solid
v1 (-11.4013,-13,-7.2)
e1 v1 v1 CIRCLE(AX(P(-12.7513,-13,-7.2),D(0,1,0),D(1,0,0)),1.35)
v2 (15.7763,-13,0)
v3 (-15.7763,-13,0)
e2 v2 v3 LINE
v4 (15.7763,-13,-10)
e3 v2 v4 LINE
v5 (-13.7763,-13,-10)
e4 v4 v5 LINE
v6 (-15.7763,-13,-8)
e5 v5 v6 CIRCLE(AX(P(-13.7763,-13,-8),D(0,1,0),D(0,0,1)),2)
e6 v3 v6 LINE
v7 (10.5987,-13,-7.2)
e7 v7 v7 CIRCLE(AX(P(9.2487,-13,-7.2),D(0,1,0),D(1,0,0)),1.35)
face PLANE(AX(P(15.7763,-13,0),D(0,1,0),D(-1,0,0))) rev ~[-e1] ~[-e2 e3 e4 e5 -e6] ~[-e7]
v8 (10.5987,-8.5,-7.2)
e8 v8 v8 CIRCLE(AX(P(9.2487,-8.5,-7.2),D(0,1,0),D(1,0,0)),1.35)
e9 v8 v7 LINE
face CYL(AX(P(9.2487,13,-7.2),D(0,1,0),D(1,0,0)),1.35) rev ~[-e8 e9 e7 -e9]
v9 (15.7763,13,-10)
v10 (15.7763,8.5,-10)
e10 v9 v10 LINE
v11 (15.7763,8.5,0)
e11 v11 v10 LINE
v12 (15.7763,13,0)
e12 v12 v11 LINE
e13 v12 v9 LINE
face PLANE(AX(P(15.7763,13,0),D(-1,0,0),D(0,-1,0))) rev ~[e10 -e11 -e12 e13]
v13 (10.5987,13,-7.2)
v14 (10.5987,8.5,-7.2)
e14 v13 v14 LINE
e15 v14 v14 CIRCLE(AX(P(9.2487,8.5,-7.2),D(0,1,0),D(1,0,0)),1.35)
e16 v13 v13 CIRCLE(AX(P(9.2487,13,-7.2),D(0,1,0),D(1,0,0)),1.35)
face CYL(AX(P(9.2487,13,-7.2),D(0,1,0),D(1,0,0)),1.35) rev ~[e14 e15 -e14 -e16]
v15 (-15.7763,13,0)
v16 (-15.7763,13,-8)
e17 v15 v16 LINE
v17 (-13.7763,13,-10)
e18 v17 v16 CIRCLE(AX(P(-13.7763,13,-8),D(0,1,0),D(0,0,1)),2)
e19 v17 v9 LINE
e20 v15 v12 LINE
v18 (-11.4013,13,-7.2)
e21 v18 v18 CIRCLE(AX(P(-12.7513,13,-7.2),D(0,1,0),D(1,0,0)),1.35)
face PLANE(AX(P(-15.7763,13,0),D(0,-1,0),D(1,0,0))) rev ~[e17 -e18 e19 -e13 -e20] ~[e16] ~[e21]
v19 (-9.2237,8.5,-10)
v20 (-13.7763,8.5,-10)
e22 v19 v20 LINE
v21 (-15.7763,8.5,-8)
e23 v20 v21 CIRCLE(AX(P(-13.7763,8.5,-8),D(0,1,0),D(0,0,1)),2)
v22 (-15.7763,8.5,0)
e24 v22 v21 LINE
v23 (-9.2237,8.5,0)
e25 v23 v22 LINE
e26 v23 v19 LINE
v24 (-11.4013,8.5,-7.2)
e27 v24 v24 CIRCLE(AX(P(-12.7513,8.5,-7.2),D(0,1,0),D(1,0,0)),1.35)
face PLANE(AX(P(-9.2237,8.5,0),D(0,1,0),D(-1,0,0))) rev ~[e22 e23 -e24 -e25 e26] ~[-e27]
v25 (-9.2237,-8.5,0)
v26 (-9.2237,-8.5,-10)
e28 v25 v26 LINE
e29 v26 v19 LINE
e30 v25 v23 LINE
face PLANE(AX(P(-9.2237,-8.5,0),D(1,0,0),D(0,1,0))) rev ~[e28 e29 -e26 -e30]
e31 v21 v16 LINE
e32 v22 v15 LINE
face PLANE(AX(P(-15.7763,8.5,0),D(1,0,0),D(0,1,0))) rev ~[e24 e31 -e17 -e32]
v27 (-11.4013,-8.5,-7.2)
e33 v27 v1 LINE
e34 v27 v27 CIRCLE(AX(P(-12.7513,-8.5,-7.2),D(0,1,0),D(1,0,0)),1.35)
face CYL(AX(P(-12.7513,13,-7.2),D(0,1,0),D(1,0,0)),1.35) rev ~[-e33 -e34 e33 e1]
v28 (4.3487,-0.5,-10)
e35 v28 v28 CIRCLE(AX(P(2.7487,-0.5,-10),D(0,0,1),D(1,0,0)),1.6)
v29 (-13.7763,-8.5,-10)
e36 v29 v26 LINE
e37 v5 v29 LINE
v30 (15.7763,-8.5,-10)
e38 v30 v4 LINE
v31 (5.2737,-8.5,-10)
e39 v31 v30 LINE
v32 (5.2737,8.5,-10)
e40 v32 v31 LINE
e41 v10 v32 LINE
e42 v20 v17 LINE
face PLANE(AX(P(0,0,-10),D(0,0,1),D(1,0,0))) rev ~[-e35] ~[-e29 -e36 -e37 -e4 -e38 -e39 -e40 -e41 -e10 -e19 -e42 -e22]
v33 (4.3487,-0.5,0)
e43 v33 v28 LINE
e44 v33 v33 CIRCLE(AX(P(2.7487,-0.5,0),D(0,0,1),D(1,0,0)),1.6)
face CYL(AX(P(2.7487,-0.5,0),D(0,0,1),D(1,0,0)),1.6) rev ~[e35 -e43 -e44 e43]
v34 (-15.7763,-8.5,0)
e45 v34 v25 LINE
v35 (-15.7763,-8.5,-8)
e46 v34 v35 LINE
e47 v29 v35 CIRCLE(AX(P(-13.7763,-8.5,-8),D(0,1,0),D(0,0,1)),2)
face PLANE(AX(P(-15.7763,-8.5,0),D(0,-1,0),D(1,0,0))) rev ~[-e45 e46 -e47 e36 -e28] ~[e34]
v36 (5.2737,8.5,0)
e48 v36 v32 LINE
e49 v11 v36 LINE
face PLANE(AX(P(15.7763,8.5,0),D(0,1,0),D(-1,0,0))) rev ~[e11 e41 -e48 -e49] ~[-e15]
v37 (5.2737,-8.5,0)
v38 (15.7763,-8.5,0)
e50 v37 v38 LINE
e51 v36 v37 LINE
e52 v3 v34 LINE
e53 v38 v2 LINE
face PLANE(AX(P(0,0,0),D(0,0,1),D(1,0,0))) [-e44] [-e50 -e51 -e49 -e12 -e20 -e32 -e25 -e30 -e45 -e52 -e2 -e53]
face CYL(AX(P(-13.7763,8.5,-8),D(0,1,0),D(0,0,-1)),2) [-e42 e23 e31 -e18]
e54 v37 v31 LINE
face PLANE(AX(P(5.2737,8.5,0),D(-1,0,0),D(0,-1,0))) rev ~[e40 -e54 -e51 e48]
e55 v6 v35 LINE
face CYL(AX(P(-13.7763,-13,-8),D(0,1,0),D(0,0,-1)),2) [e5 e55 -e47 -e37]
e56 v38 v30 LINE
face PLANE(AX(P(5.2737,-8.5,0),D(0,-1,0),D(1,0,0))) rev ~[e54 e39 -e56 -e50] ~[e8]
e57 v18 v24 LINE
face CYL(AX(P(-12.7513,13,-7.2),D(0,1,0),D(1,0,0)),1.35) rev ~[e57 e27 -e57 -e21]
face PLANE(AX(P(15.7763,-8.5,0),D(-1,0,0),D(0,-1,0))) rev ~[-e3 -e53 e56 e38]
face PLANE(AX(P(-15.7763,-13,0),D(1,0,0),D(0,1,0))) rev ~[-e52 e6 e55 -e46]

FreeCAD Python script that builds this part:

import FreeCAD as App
import Part
import Sketcher
Q = App.Units.Quantity


def edges_at(feature, points):
    """Names of the edges that pass closest to the given points."""
    edges = feature.Shape.Edges
    near = lambda p: min(range(len(edges)), key=lambda i: edges[i].distToShape(Part.Vertex(*p))[0])
    return sorted({f"Edge{near(p) + 1}" for p in points})

doc = App.newDocument("Part")
body = doc.addObject("PartDesign::Body", "Body")

# Sketch on XY plane
sketch1 = body.newObject("Sketcher::SketchObject", "Sketch")
sketch1.AttachmentSupport = (doc.getObject("XY_Plane"), [""])
sketch1.MapMode = "FlatFace"
sketch1.addGeometry(Part.LineSegment(App.Vector(15.8, -8.5, 0), App.Vector(5.3, -8.5, 0)), False)
sketch1.addGeometry(Part.LineSegment(App.Vector(5.3, -8.5, 0), App.Vector(5.3, 8.5, 0)), False)
sketch1.addGeometry(Part.LineSegment(App.Vector(5.3, 8.5, 0), App.Vector(15.8, 8.5, 0)), False)
sketch1.addGeometry(Part.LineSegment(App.Vector(15.8, 8.5, 0), App.Vector(15.8, 13, 0)), False)
sketch1.addGeometry(Part.LineSegment(App.Vector(15.8, 13, 0), App.Vector(-15.8, 13, 0)), False)
sketch1.addGeometry(Part.LineSegment(App.Vector(-15.8, 13, 0), App.Vector(-15.8, 8.5, 0)), False)
sketch1.addGeometry(Part.LineSegment(App.Vector(-15.8, 8.5, 0), App.Vector(-9.2, 8.5, 0)), False)
sketch1.addGeometry(Part.LineSegment(App.Vector(-9.2, 8.5, 0), App.Vector(-9.2, -8.5, 0)), False)
sketch1.addGeometry(Part.LineSegment(App.Vector(-9.2, -8.5, 0), App.Vector(-15.8, -8.5, 0)), False)
sketch1.addGeometry(Part.LineSegment(App.Vector(-15.8, -8.5, 0), App.Vector(-15.8, -13, 0)), False)
sketch1.addGeometry(Part.LineSegment(App.Vector(-15.8, -13, 0), App.Vector(15.8, -13, 0)), False)
sketch1.addGeometry(Part.LineSegment(App.Vector(15.8, -13, 0), App.Vector(15.8, -8.5, 0)), False)
sketch1.addGeometry(Part.Circle(App.Vector(2.7, -0.5, 0), App.Vector(0, 0, 1), 1.6), False)
sketch1.addConstraint(Sketcher.Constraint("Coincident", 0, 2, 1, 1))
sketch1.addConstraint(Sketcher.Constraint("Coincident", 1, 2, 2, 1))
sketch1.addConstraint(Sketcher.Constraint("Coincident", 2, 2, 3, 1))
sketch1.addConstraint(Sketcher.Constraint("Coincident", 3, 2, 4, 1))
sketch1.addConstraint(Sketcher.Constraint("Coincident", 4, 2, 5, 1))
sketch1.addConstraint(Sketcher.Constraint("Coincident", 5, 2, 6, 1))
sketch1.addConstraint(Sketcher.Constraint("Coincident", 6, 2, 7, 1))
sketch1.addConstraint(Sketcher.Constraint("Coincident", 7, 2, 8, 1))
sketch1.addConstraint(Sketcher.Constraint("Coincident", 8, 2, 9, 1))
sketch1.addConstraint(Sketcher.Constraint("Coincident", 9, 2, 10, 1))
sketch1.addConstraint(Sketcher.Constraint("Coincident", 10, 2, 11, 1))
sketch1.addConstraint(Sketcher.Constraint("Coincident", 11, 2, 0, 1))
sketch1.addConstraint(Sketcher.Constraint("Horizontal", 0))
sketch1.addConstraint(Sketcher.Constraint("Vertical", 1))
sketch1.addConstraint(Sketcher.Constraint("Horizontal", 2))
sketch1.addConstraint(Sketcher.Constraint("Vertical", 3))
sketch1.addConstraint(Sketcher.Constraint("Horizontal", 4))
sketch1.addConstraint(Sketcher.Constraint("Vertical", 5))
sketch1.addConstraint(Sketcher.Constraint("Horizontal", 6))
sketch1.addConstraint(Sketcher.Constraint("Vertical", 7))
sketch1.addConstraint(Sketcher.Constraint("Horizontal", 8))
sketch1.addConstraint(Sketcher.Constraint("Vertical", 9))
sketch1.addConstraint(Sketcher.Constraint("Horizontal", 10))
sketch1.addConstraint(Sketcher.Constraint("Vertical", 11))
sketch1.addConstraint(Sketcher.Constraint("Symmetric", 2, 2, 8, 2, -1, 1))
sketch1.addConstraint(Sketcher.Constraint("Symmetric", 4, 2, 10, 2, -1, 1))
sketch1.addConstraint(Sketcher.Constraint("Symmetric", 2, 2, 5, 2, -2))
sketch1.addConstraint(Sketcher.Constraint("Horizontal", 0, 2, 7, 2))
sketch1.addConstraint(Sketcher.Constraint("Diameter", 12, Q("3.2 mm")))
sketch1.addConstraint(Sketcher.Constraint("DistanceY", 1, 1, 1, 2, Q("17 mm")))
sketch1.addConstraint(Sketcher.Constraint("DistanceY", 3, 1, 3, 2, Q("4.5 mm")))
sketch1.addConstraint(Sketcher.Constraint("DistanceY", 0, 2, 12, 3, Q("8 mm")))
sketch1.addConstraint(Sketcher.Constraint("DistanceX", 7, 2, 10, 2, Q("25 mm")))
sketch1.addConstraint(Sketcher.Constraint("DistanceX", 4, 2, 1, 2, Q("21.05 mm")))
sketch1.addConstraint(Sketcher.Constraint("DistanceX", 0, 2, 0, 1, Q("10.5026 mm")))
sketch1.addConstraint(Sketcher.Constraint("DistanceX", 12, 3, 0, 2, Q("2.525 mm")))
pad1 = body.newObject("PartDesign::Pad", "Pad")
pad1.Profile = sketch1
pad1.Length = 10
pad1.Reversed = True

# Sketch on XZ plane
sketch2 = body.newObject("Sketcher::SketchObject", "Sketch001")
sketch2.AttachmentSupport = (doc.getObject("XZ_Plane"), [""])
sketch2.MapMode = "FlatFace"
sketch2.AttachmentOffset = App.Placement(App.Vector(0, 0, -13), App.Rotation())
sketch2.addGeometry(Part.Circle(App.Vector(-12.8, -7.2, 0), App.Vector(0, 0, 1), 1.4), False)
sketch2.addGeometry(Part.Circle(App.Vector(9.2, -7.2, 0), App.Vector(0, 0, 1), 1.4), False)
sketch2.addConstraint(Sketcher.Constraint("Equal", 0, 1))
sketch2.addConstraint(Sketcher.Constraint("Horizontal", 0, 3, 1, 3))
sketch2.addConstraint(Sketcher.Constraint("Diameter", 0, Q("2.7 mm")))
sketch2.addConstraint(Sketcher.Constraint("DistanceX", 0, 3, 1, 3, Q("22 mm")))
sketch2.addConstraint(Sketcher.Constraint("DistanceY", 0, 3, -1, 1, Q("7.2 mm")))
sketch2.addConstraint(Sketcher.Constraint("DistanceX", 0, 3, -1, 1, Q("12.7513 mm")))
pocket1 = body.newObject("PartDesign::Pocket", "Pocket")
pocket1.Profile = sketch2
pocket1.Type = "ThroughAll"
pocket1.Reversed = True
doc.recompute()

fillet = body.newObject("PartDesign::Fillet", "Fillet")
fillet.Base = (pocket1, edges_at(pocket1, [(-15.776, -10.75, -10), (-15.776, 10.75, -10)]))
fillet.Radius = 2

doc.recompute()
